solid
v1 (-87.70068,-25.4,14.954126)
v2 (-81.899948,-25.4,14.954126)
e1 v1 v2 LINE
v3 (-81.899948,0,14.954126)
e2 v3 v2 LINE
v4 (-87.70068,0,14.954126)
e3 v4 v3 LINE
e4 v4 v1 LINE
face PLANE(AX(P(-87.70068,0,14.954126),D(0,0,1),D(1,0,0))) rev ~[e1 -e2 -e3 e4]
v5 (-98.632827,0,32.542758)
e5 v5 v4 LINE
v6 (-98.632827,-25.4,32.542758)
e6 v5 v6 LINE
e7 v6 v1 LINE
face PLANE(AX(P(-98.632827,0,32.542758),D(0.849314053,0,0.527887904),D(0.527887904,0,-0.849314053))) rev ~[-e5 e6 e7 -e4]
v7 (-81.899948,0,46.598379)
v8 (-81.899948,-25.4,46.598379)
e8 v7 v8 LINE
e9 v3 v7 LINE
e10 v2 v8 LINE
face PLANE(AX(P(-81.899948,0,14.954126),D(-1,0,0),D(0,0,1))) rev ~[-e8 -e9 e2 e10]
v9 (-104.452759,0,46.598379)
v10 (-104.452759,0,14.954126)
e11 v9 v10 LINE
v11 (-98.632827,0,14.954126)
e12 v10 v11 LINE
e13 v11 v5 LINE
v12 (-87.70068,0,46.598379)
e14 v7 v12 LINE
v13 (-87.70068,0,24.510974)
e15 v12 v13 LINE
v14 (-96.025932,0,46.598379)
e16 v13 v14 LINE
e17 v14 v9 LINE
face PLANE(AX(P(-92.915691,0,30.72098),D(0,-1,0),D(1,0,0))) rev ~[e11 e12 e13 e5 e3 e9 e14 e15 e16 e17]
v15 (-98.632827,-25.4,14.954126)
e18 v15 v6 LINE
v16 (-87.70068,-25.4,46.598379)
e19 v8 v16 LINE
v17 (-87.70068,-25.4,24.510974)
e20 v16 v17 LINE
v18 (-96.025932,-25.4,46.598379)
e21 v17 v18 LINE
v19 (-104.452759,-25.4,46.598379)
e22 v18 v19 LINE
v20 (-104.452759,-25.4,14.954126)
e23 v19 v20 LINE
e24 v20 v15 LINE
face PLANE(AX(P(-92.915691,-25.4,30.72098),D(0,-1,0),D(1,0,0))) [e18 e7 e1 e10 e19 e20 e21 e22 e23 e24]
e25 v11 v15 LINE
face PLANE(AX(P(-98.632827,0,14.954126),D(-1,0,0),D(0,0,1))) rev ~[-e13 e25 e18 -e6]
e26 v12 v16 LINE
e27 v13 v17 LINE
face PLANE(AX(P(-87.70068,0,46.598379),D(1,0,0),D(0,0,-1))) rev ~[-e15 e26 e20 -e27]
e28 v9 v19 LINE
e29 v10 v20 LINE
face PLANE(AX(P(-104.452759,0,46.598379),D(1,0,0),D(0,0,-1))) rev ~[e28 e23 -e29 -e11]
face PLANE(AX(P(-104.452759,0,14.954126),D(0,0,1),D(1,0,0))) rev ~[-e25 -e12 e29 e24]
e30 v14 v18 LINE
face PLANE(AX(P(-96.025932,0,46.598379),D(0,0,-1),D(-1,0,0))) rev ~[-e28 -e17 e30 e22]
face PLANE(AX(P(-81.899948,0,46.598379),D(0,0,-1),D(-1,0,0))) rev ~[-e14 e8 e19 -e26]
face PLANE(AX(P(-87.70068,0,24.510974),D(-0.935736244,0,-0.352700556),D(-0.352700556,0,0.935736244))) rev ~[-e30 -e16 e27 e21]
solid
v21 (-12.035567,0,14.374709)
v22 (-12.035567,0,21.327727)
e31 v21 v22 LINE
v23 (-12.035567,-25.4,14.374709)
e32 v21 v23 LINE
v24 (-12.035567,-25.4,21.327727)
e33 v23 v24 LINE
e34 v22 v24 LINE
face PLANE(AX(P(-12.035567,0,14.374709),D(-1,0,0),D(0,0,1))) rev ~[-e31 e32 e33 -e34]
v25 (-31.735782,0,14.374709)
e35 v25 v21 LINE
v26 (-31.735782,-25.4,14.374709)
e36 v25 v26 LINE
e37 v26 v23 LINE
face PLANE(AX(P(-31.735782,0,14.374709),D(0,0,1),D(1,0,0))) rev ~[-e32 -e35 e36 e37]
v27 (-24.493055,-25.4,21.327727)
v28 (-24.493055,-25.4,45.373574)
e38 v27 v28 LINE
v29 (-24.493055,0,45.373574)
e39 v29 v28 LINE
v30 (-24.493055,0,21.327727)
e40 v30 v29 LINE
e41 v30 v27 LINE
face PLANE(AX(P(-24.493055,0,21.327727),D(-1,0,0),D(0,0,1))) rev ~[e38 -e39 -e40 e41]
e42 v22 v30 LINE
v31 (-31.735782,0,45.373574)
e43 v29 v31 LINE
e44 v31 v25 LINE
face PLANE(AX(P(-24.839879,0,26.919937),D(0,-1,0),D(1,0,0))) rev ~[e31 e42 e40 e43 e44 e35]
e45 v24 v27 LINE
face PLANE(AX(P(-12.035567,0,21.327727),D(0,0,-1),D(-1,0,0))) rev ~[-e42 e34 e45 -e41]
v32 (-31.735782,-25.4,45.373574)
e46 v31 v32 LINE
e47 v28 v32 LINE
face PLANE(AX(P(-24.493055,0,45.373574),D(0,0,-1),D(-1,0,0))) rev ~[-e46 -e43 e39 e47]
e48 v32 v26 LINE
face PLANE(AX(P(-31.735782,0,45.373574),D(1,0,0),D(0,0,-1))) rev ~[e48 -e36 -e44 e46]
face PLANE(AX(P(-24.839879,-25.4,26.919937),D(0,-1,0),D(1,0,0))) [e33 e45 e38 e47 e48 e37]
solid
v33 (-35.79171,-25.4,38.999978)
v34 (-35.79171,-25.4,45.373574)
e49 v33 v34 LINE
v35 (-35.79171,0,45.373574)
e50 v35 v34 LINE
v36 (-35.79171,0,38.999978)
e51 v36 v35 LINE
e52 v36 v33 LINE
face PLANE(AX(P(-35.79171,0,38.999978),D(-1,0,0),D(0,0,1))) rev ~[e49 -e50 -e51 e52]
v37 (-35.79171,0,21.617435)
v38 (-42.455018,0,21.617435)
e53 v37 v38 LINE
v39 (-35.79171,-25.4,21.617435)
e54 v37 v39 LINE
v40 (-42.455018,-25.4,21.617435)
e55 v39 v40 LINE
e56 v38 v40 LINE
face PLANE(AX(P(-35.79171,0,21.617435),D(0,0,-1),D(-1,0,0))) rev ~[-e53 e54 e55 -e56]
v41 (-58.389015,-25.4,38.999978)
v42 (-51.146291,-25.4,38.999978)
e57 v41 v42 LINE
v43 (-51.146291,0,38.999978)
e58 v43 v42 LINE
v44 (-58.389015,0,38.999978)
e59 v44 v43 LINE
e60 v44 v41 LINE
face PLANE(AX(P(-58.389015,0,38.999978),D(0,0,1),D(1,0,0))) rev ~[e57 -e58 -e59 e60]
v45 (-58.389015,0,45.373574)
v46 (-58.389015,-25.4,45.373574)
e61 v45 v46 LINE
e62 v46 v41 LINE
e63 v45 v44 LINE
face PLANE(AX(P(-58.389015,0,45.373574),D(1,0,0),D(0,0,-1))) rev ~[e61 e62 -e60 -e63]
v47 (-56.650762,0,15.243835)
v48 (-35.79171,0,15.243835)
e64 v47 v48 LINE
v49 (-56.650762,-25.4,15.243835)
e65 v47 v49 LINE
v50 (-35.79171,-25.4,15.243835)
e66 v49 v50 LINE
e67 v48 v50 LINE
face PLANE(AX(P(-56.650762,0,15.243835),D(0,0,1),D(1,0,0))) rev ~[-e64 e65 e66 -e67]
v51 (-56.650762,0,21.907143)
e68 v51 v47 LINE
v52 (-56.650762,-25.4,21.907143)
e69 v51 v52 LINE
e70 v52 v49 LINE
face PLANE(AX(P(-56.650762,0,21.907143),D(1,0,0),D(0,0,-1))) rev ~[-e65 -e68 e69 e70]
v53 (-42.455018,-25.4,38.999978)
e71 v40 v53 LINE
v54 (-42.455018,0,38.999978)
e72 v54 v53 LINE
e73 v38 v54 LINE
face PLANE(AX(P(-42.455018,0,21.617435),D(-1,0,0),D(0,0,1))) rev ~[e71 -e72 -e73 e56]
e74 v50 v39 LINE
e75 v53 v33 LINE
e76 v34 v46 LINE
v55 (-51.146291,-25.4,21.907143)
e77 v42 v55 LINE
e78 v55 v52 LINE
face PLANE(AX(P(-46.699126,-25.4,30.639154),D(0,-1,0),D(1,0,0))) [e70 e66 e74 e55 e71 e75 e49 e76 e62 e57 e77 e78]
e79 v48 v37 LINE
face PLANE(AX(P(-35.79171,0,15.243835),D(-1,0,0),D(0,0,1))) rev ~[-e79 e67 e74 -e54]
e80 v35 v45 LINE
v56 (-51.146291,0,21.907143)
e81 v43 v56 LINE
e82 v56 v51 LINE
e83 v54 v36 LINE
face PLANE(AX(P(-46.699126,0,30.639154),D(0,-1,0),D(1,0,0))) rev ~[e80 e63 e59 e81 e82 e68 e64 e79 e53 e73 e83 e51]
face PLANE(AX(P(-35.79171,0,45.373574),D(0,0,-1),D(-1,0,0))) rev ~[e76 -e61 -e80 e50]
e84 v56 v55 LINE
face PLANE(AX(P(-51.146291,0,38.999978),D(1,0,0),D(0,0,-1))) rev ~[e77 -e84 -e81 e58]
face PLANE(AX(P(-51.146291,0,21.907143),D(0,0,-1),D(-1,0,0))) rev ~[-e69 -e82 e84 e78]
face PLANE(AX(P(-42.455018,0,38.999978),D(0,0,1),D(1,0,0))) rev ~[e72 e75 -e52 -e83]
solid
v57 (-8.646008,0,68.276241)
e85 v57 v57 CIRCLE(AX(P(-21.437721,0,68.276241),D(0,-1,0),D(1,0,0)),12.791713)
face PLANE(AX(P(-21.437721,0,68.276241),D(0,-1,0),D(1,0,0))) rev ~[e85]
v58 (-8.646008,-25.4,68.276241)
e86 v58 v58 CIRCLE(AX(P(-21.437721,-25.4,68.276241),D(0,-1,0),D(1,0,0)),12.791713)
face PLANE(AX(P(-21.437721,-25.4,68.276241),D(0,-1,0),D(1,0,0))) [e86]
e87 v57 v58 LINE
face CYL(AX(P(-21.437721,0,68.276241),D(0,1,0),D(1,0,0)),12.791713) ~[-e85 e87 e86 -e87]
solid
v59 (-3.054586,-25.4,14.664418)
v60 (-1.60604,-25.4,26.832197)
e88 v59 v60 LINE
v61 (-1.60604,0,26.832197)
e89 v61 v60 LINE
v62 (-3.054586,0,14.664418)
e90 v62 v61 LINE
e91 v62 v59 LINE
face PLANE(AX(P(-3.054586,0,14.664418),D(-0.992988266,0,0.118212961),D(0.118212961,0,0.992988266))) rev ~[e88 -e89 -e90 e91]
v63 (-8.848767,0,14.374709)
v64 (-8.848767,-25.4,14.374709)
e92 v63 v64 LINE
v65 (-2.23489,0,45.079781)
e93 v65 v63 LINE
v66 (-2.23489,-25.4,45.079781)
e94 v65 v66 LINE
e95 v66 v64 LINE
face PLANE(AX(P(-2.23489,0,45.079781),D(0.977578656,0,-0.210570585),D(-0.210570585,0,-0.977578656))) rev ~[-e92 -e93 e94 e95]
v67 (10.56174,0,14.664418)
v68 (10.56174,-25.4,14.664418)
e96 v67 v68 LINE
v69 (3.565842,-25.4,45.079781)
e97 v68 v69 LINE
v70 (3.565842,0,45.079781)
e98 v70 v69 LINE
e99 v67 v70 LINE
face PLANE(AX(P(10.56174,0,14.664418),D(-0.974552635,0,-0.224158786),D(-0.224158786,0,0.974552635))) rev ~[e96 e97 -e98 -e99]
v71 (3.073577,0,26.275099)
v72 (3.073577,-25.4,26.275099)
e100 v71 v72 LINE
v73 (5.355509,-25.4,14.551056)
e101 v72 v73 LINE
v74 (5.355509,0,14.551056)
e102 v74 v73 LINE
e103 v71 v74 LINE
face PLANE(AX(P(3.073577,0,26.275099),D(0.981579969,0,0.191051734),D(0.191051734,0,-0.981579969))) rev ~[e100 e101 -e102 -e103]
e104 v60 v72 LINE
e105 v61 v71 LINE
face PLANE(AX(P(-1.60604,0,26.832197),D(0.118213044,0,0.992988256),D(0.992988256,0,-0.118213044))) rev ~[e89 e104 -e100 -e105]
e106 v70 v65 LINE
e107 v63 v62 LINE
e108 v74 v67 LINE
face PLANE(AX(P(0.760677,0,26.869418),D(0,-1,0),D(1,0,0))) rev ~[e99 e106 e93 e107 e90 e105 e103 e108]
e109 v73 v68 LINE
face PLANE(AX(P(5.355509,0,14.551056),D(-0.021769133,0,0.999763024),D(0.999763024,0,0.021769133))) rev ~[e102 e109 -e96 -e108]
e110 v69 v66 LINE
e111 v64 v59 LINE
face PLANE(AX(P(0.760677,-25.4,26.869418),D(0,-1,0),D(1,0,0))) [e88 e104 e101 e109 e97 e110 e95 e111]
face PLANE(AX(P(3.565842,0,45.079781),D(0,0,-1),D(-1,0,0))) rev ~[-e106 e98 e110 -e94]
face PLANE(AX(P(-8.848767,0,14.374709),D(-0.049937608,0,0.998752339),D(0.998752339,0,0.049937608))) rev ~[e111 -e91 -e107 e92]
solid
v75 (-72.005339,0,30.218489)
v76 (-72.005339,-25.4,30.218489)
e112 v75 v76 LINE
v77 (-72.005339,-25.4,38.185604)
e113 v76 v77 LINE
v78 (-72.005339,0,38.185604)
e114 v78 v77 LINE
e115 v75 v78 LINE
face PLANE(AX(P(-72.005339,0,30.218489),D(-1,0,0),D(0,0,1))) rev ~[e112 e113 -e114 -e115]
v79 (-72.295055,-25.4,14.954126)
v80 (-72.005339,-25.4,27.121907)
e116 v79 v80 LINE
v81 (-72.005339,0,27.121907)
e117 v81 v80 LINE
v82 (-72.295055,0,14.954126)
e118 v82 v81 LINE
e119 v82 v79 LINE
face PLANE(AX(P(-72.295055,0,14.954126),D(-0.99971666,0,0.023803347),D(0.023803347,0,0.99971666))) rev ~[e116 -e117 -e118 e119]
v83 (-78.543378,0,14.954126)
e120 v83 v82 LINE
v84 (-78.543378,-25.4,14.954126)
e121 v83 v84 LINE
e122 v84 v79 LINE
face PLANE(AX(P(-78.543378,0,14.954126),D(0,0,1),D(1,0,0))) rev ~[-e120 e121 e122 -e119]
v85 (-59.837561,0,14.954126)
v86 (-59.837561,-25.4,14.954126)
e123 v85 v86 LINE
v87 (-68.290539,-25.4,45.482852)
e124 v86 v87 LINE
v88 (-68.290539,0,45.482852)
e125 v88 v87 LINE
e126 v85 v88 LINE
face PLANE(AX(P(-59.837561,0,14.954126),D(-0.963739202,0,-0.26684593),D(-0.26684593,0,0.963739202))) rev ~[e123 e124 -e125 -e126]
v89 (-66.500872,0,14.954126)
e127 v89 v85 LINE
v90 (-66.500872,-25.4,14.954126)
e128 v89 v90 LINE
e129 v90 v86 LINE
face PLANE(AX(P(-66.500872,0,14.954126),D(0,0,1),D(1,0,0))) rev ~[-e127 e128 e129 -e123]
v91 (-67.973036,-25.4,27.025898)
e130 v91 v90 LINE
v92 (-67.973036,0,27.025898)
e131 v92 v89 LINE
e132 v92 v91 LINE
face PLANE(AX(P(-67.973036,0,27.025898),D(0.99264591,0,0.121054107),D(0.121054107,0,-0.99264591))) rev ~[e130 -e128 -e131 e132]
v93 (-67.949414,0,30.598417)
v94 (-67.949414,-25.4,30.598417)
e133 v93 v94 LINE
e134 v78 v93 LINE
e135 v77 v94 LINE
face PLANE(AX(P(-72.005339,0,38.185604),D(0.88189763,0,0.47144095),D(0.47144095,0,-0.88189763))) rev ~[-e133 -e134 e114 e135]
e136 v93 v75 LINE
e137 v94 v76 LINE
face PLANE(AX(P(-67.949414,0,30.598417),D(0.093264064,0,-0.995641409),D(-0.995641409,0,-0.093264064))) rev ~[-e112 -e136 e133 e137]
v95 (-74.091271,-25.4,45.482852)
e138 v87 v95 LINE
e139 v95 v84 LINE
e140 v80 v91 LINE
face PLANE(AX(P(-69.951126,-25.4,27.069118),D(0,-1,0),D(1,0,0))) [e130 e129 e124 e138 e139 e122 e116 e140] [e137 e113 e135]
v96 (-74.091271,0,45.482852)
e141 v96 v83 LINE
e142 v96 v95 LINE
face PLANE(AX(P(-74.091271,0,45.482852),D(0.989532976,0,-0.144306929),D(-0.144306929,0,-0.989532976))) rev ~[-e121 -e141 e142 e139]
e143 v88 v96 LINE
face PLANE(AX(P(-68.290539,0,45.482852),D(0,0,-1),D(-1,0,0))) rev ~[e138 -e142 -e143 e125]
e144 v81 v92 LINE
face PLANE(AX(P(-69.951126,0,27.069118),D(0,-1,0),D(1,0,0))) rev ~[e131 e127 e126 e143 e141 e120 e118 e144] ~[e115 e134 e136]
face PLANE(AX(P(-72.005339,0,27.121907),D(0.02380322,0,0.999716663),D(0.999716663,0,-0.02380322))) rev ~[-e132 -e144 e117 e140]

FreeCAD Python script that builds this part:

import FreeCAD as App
import Part
import Sketcher
from FreeCAD import Vector
Q = App.Units.Quantity


def add_polygon(sketch, points):
    """Adds a closed chain of lines whose ends are joined by coincident constraints."""
    first, n = sketch.GeometryCount, len(points)
    for a, b in zip(points, points[1:] + points[:1]):
        sketch.addGeometry(Part.LineSegment(App.Vector(*a, 0), App.Vector(*b, 0)), False)
    for i in range(n):
        sketch.addConstraint(Sketcher.Constraint("Coincident", first + i, 2, first + (i + 1) % n, 1))

doc = App.newDocument("Part")
body = doc.addObject("PartDesign::Body", "Body")
body.AllowCompound = True

sketch1 = doc.addObject("Sketcher::SketchObject", "Sketch")
body.addObject(sketch1)
sketch1.AttachmentSupport = (doc.XZ_Plane, [""])
sketch1.MapMode = "FlatFace"
add_polygon(sketch1, [(-96, 46.6), (-104.5, 46.6), (-104.5, 15), (-98.6, 15), (-98.6, 32.5), (-87.7, 15), (-81.9, 15), (-81.9, 46.6), (-87.7, 46.6), (-87.7, 24.5)])
add_polygon(sketch1, [(-74.1, 45.5), (-78.5, 15), (-72.3, 15), (-72, 27.1), (-68, 27), (-66.5, 15), (-59.8, 15), (-68.3, 45.5)])
add_polygon(sketch1, [(-72, 30.2), (-72, 38.2), (-67.9, 30.6)])
add_polygon(sketch1, [(-56.7, 21.9), (-56.7, 15.2), (-35.8, 15.2), (-35.8, 21.6), (-42.5, 21.6), (-42.5, 39), (-35.8, 39), (-35.8, 45.4), (-58.4, 45.4), (-58.4, 39), (-51.1, 39), (-51.1, 21.9)])
add_polygon(sketch1, [(-24.5, 45.4), (-31.7, 45.4), (-31.7, 14.4), (-12, 14.4), (-12, 21.3), (-24.5, 21.3)])
add_polygon(sketch1, [(-2.2, 45.1), (-8.8, 14.4), (-3.1, 14.7), (-1.6, 26.8), (3.1, 26.3), (5.4, 14.6), (10.6, 14.7), (3.6, 45.1)])
sketch1.addGeometry(Part.Circle(Vector(-21.4, 68.3, 0), Vector(0, 0, 1), 12.8), False)
sketch1.addConstraint([
    Sketcher.Constraint("Horizontal", 0),
    Sketcher.Constraint("Vertical", 1),
    Sketcher.Constraint("Horizontal", 2),
    Sketcher.Constraint("Vertical", 3),
    Sketcher.Constraint("Horizontal", 5),
    Sketcher.Constraint("Vertical", 6),
    Sketcher.Constraint("Horizontal", 7),
    Sketcher.Constraint("Vertical", 8),
    Sketcher.Constraint("Horizontal", 11),
    Sketcher.Constraint("Horizontal", 15),
    Sketcher.Constraint("Horizontal", 17),
    Sketcher.Constraint("Vertical", 18),
    Sketcher.Constraint("Vertical", 21),
    Sketcher.Constraint("Horizontal", 22),
    Sketcher.Constraint("Vertical", 23),
    Sketcher.Constraint("Horizontal", 24),
    Sketcher.Constraint("Vertical", 25),
    Sketcher.Constraint("Horizontal", 26),
    Sketcher.Constraint("Vertical", 27),
    Sketcher.Constraint("Horizontal", 28),
    Sketcher.Constraint("Vertical", 29),
    Sketcher.Constraint("Horizontal", 30),
    Sketcher.Constraint("Vertical", 31),
    Sketcher.Constraint("Horizontal", 32),
    Sketcher.Constraint("Horizontal", 33),
    Sketcher.Constraint("Vertical", 34),
    Sketcher.Constraint("Horizontal", 35),
    Sketcher.Constraint("Vertical", 36),
    Sketcher.Constraint("Horizontal", 37),
    Sketcher.Constraint("Vertical", 38),
    Sketcher.Constraint("Horizontal", 46),
    Sketcher.Constraint("Perpendicular", 12, 13),
    Sketcher.Constraint("Perpendicular", 41, 42),
    Sketcher.Constraint("Horizontal", 2, 2, 4, 2),
    Sketcher.Constraint("Horizontal", 0, 2, 6, 2),
    Sketcher.Constraint("Horizontal", 5, 2, 10, 2),
    Sketcher.Constraint("Horizontal", 11, 2, 14, 2),
    Sketcher.Constraint("Horizontal", 26, 2, 29, 2),
    Sketcher.Constraint("Horizontal", 28, 2, 33, 2),
    Sketcher.Constraint("Horizontal", 35, 2, 39, 2),
    Sketcher.Constraint("Horizontal", 40, 2, 44, 2),
    Sketcher.Constraint("Vertical", 4, 2, 7, 2),
    Sketcher.Constraint("Vertical", 12, 2, 18, 2),
    Sketcher.Constraint("Vertical", 23, 2, 26, 2),
    Sketcher.Constraint("Equal", 7, 17),
    Sketcher.Constraint("Equal", 17, 46),
    Sketcher.Constraint("Equal", 26, 21),
    Sketcher.Constraint("Diameter", 47, Q("25.583426 mm")),
    Sketcher.Constraint("DistanceY", 23, 1, 23, 2, Q("6.3736 mm")),
    Sketcher.Constraint("DistanceX", 16, 2, 13, 2, Q("0.0125001 in")),
    Sketcher.Constraint("Distance", 41, Q("12.253699 mm")),
    Sketcher.Constraint("DistanceX", 2, 1, 2, 2, Q("5.819932 mm")),
    Sketcher.Constraint("DistanceX", 15, 1, 15, 2, Q("6.663311 mm")),
    Sketcher.Constraint("DistanceX", 22, 1, 22, 2, Q("20.859052 mm")),
    Sketcher.Constraint("DistanceX", 24, 2, 24, 1, Q("6.663308 mm")),
    Sketcher.Constraint("DistanceX", 32, 2, 32, 1, Q("5.504471 mm")),
    Sketcher.Constraint("DistanceY", 3, 1, 3, 2, Q("17.588632 mm")),
    Sketcher.Constraint("DistanceY", -1, 1, 13, 2, Q("27.025898 mm")),
    Sketcher.Constraint("DistanceY", -1, 1, 42, 2, Q("26.275099 mm")),
    Sketcher.Constraint("DistanceX", 12, 2, 16, 2, Q("3.7148 mm")),
    Sketcher.Constraint("DistanceX", 15, 2, 21, 2, Q("3.186799 mm")),
    Sketcher.Constraint("DistanceX", 19, 2, 28, 2, Q("9.560399 mm")),
    Sketcher.Constraint("DistanceX", 35, 2, 39, 2, Q("3.1868 mm")),
    Sketcher.Constraint("Distance", 4, Q("20.70922 mm")),
    Sketcher.Constraint("Distance", 10, Q("30.851651 mm")),
    Sketcher.Constraint("Distance", 12, Q("12.17123 mm")),
    Sketcher.Constraint("Distance", 19, Q("8.603251 mm")),
    Sketcher.Constraint("Distance", 20, Q("4.073681 mm")),
    Sketcher.Constraint("Distance", 39, Q("31.409311 mm")),
    Sketcher.Constraint("Distance", 40, Q("5.801419 mm")),
    Sketcher.Constraint("Distance", 42, Q("4.712661 mm")),
    Sketcher.Constraint("DistanceX", 0, 2, 0, 1, Q("8.426827 mm")),
    Sketcher.Constraint("DistanceX", 5, 1, 5, 2, Q("5.800732 mm")),
    Sketcher.Constraint("DistanceX", 11, 1, 11, 2, Q("6.248323 mm")),
    Sketcher.Constraint("DistanceX", 28, 2, 28, 1, Q("22.597305 mm")),
    Sketcher.Constraint("DistanceX", 33, 2, 33, 1, Q("7.242727 mm")),
    Sketcher.Constraint("DistanceX", 35, 1, 35, 2, Q("19.700215 mm")),
    Sketcher.Constraint("DistanceY", 1, 2, 1, 1, Q("31.644253 mm")),
    Sketcher.Constraint("DistanceY", 8, 2, 8, 1, Q("22.087405 mm")),
    Sketcher.Constraint("DistanceY", 18, 1, 18, 2, Q("7.967115 mm")),
    Sketcher.Constraint("DistanceY", 25, 1, 25, 2, Q("17.382543 mm")),
    Sketcher.Constraint("DistanceY", 27, 1, 27, 2, Q("6.373596 mm")),
    Sketcher.Constraint("DistanceY", 34, 2, 34, 1, Q("30.998865 mm")),
    Sketcher.Constraint("DistanceY", 36, 1, 36, 2, Q("6.953018 mm")),
    Sketcher.Constraint("DistanceX", 47, 3, -1, 1, Q("21.437721 mm")),
    Sketcher.Constraint("DistanceY", -1, 1, 47, 3, Q("68.276241 mm")),
    Sketcher.Constraint("DistanceX", 0, 2, -1, 1, Q("104.452759 mm")),
    Sketcher.Constraint("DistanceY", -1, 1, 0, 2, Q("46.598379 mm")),
    Sketcher.Constraint("DistanceX", 10, 2, -1, 1, Q("78.543378 mm")),
    Sketcher.Constraint("DistanceY", -1, 1, 20, 2, Q("30.218489 mm")),
    Sketcher.Constraint("DistanceY", -1, 1, 34, 2, Q("14.374709 mm")),
    Sketcher.Constraint("DistanceX", 41, 2, -1, 1, Q("1.60604 mm")),
    Sketcher.Constraint("DistanceX", -1, 1, 43, 2, Q("5.355509 mm")),
    Sketcher.Constraint("DistanceX", -1, 1, 44, 2, Q("10.56174 mm")),
    Sketcher.Constraint("DistanceX", -1, 1, 45, 2, Q("3.565842 mm")),
    Sketcher.Constraint("DistanceY", -1, 1, 45, 2, Q("45.079781 mm")),
    Sketcher.Constraint("DistanceY", 43, 2, 40, 2, Q("0.113362 mm")),
])
pad1 = doc.addObject("PartDesign::Pad", "Pad")
body.addObject(pad1)
pad1.Profile = sketch1
pad1.Length = Q("1 in")

doc.recompute()
